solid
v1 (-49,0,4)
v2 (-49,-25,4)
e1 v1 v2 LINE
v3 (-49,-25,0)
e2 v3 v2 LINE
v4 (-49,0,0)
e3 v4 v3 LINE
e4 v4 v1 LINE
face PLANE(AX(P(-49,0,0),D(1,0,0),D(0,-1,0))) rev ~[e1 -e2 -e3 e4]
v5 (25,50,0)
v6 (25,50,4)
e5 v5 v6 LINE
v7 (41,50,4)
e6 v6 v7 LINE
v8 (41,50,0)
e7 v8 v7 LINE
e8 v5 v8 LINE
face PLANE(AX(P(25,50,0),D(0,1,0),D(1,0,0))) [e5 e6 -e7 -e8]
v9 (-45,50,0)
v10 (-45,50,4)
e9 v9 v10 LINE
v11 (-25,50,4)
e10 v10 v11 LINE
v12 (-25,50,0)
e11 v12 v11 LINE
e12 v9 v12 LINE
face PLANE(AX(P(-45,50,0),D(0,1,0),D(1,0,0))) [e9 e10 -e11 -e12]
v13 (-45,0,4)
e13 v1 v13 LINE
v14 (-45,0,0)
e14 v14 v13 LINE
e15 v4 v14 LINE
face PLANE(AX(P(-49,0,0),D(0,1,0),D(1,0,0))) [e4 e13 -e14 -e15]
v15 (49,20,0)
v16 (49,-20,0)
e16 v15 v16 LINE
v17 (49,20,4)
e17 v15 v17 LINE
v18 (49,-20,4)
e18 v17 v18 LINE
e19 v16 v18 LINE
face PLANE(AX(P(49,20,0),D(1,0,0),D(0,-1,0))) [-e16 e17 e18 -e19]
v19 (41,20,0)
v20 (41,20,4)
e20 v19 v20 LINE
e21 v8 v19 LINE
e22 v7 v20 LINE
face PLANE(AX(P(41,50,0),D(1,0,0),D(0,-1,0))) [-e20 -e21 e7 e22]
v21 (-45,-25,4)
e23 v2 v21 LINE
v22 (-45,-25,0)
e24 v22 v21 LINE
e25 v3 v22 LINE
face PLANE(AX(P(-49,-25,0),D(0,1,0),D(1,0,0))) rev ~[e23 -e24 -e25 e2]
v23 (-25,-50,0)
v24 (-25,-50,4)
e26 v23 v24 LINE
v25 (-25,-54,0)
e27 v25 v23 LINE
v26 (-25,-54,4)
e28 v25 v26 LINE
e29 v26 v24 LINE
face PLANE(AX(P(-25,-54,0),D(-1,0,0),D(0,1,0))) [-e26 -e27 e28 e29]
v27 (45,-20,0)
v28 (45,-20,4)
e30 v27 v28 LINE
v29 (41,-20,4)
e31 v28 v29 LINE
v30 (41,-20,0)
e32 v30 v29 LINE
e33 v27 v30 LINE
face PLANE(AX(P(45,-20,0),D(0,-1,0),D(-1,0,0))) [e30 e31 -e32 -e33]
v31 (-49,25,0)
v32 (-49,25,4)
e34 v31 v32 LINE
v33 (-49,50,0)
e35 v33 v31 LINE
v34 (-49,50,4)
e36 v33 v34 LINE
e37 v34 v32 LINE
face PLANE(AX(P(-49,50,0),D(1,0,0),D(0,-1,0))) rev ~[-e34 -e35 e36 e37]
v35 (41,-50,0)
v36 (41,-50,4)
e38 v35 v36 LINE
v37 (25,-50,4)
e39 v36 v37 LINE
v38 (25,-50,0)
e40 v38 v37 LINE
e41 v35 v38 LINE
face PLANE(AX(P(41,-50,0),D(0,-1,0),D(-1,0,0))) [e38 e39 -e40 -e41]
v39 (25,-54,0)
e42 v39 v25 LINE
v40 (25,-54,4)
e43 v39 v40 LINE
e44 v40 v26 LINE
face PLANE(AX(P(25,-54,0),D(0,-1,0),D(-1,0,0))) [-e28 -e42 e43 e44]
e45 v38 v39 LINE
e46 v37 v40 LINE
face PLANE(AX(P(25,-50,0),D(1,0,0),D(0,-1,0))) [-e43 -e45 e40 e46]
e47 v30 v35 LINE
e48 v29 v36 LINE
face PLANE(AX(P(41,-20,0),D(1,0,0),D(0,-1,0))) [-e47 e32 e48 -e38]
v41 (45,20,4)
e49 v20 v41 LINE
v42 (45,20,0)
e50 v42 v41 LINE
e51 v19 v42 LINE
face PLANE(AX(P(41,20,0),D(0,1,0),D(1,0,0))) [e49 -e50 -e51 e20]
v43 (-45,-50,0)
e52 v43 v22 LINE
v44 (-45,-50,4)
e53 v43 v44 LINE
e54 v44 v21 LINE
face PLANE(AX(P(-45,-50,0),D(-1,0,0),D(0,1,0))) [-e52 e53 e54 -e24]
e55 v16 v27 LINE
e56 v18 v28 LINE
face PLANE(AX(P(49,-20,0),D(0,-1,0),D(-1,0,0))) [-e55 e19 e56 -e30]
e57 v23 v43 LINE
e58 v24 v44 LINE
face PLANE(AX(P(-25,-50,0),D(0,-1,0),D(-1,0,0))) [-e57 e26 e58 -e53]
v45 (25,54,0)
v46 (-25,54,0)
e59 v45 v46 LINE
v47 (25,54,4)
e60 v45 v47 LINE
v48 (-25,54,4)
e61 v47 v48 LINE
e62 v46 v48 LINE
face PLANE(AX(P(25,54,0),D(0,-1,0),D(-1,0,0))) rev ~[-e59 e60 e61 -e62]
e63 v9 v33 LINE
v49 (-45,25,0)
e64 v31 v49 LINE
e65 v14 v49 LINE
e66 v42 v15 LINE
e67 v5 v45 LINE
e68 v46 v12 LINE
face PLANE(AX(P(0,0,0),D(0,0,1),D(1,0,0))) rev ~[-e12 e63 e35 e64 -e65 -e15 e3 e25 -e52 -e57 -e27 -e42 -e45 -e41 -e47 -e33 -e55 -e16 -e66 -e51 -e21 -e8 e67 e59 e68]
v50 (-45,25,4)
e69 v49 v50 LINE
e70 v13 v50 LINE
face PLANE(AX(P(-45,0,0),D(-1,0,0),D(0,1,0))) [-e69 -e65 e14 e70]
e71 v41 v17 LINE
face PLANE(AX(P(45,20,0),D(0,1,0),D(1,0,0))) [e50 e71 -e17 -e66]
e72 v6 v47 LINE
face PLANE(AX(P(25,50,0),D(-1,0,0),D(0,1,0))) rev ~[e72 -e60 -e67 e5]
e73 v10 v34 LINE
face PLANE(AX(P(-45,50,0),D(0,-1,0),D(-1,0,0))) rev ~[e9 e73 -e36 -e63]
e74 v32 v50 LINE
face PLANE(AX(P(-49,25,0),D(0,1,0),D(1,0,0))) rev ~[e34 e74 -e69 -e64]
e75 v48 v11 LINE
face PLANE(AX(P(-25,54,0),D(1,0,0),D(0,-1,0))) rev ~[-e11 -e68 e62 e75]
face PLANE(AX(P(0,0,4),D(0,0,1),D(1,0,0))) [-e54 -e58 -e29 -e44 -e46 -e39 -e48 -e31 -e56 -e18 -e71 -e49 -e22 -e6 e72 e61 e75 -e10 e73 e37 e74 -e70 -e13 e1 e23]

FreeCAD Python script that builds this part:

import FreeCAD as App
import Part
import Sketcher
from FreeCAD import Vector
Q = App.Units.Quantity


def add_polygon(sketch, points):
    """Adds a closed chain of lines whose ends are joined by coincident constraints."""
    first, n = sketch.GeometryCount, len(points)
    for a, b in zip(points, points[1:] + points[:1]):
        sketch.addGeometry(Part.LineSegment(App.Vector(*a, 0), App.Vector(*b, 0)), False)
    for i in range(n):
        sketch.addConstraint(Sketcher.Constraint("Coincident", first + i, 2, first + (i + 1) % n, 1))

doc = App.newDocument("Part")
body = doc.addObject("PartDesign::Body", "Body")

sketch1 = body.newObject("Sketcher::SketchObject", "Sketch")
sketch1.AttachmentSupport = (doc.getObject("XY_Plane"), [""])
sketch1.MapMode = "FlatFace"
add_polygon(sketch1, [(-25, 50), (-49, 50), (-49, 25), (-45, 25), (-45, 0), (-49, 0), (-49, -25), (-45, -25), (-45, -50), (-25, -50), (-25, -54), (25, -54), (25, -50), (41, -50), (41, -20), (49, -20), (49, 20), (41, 20), (41, 50), (25, 50), (25, 54), (-25, 54)])
sketch1.addConstraint(Sketcher.Constraint("Horizontal", 0))
sketch1.addConstraint(Sketcher.Constraint("Vertical", 1))
sketch1.addConstraint(Sketcher.Constraint("Horizontal", 2))
sketch1.addConstraint(Sketcher.Constraint("Vertical", 3))
sketch1.addConstraint(Sketcher.Constraint("Horizontal", 4))
sketch1.addConstraint(Sketcher.Constraint("Vertical", 5))
sketch1.addConstraint(Sketcher.Constraint("Horizontal", 6))
sketch1.addConstraint(Sketcher.Constraint("Vertical", 7))
sketch1.addConstraint(Sketcher.Constraint("Horizontal", 8))
sketch1.addConstraint(Sketcher.Constraint("Vertical", 9))
sketch1.addConstraint(Sketcher.Constraint("Horizontal", 10))
sketch1.addConstraint(Sketcher.Constraint("Vertical", 11))
sketch1.addConstraint(Sketcher.Constraint("Horizontal", 12))
sketch1.addConstraint(Sketcher.Constraint("Vertical", 13))
sketch1.addConstraint(Sketcher.Constraint("Horizontal", 14))
sketch1.addConstraint(Sketcher.Constraint("Vertical", 15))
sketch1.addConstraint(Sketcher.Constraint("Horizontal", 16))
sketch1.addConstraint(Sketcher.Constraint("Vertical", 17))
sketch1.addConstraint(Sketcher.Constraint("Horizontal", 18))
sketch1.addConstraint(Sketcher.Constraint("Vertical", 19))
sketch1.addConstraint(Sketcher.Constraint("Horizontal", 20))
sketch1.addConstraint(Sketcher.Constraint("Vertical", 21))
sketch1.addConstraint(Sketcher.Constraint("Symmetric", 8, 2, 18, 2, -1, 1))
sketch1.addConstraint(Sketcher.Constraint("Symmetric", 10, 2, 20, 2, -1, 1))
sketch1.addConstraint(Sketcher.Constraint("Symmetric", 8, 2, 11, 2, -2))
sketch1.addConstraint(Sketcher.Constraint("Symmetric", 1, 2, 5, 2, -1))
sketch1.addConstraint(Sketcher.Constraint("Symmetric", 13, 2, 16, 2, -1))
sketch1.addConstraint(Sketcher.Constraint("PointOnObject", 3, 2, -1))
sketch1.addConstraint(Sketcher.Constraint("Horizontal", 0, 2, 17, 2))
sketch1.addConstraint(Sketcher.Constraint("Vertical", 3, 2, 6, 2))
sketch1.addConstraint(Sketcher.Constraint("Equal", 1, 3))
sketch1.addConstraint(Sketcher.Constraint("Equal", 6, 9))
sketch1.addConstraint(Sketcher.Constraint("DistanceX", 2, 1, 2, 2, Q("4 mm")))
sketch1.addConstraint(Sketcher.Constraint("DistanceX", 10, 1, 10, 2, Q("50 mm")))
sketch1.addConstraint(Sketcher.Constraint("DistanceY", 1, 2, 1, 1, Q("25 mm")))
sketch1.addConstraint(Sketcher.Constraint("DistanceY", 15, 1, 15, 2, Q("40 mm")))
sketch1.addConstraint(Sketcher.Constraint("DistanceX", 0, 2, 0, 1, Q("24 mm")))
sketch1.addConstraint(Sketcher.Constraint("DistanceX", 12, 1, 12, 2, Q("16 mm")))
sketch1.addConstraint(Sketcher.Constraint("DistanceX", 14, 1, 14, 2, Q("8 mm")))
pad1 = body.newObject("PartDesign::Pad", "Pad")
pad1.Profile = sketch1
pad1.Length = 4

doc.recompute()
